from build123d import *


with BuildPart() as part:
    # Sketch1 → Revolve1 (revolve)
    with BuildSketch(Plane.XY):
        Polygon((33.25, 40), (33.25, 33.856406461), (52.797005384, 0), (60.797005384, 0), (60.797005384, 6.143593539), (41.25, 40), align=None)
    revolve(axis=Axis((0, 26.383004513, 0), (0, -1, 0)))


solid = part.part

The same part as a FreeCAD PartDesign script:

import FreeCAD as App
import Part
import Sketcher
from FreeCAD import Vector
Q = App.Units.Quantity

doc = App.newDocument("Part")
body = doc.addObject("PartDesign::Body", "Body")

# Sketch on XY plane
sketch1 = body.newObject("Sketcher::SketchObject", "Sketch")
sketch1.AttachmentSupport = (doc.getObject("XY_Plane"), [""])
sketch1.MapMode = "FlatFace"
sketch1.addGeometry(Part.LineSegment(Vector(33.25, 40, 0), Vector(33.25, 33.856406, 0)), False)
sketch1.addGeometry(Part.LineSegment(Vector(33.25, 33.856406, 0), Vector(52.797005, 0, 0)), False)
sketch1.addGeometry(Part.LineSegment(Vector(52.797005, 0, 0), Vector(60.797005, 0, 0)), False)
sketch1.addGeometry(Part.LineSegment(Vector(60.797005, 0, 0), Vector(60.797005, 6.143594, 0)), False)
sketch1.addGeometry(Part.LineSegment(Vector(60.797005, 6.143594, 0), Vector(41.25, 40, 0)), False)
sketch1.addGeometry(Part.LineSegment(Vector(41.25, 40, 0), Vector(33.25, 40, 0)), False)
sketch1.addConstraint(Sketcher.Constraint("Coincident", 0, 2, 1, 1))
sketch1.addConstraint(Sketcher.Constraint("Coincident", 1, 2, 2, 1))
sketch1.addConstraint(Sketcher.Constraint("Coincident", 2, 2, 3, 1))
sketch1.addConstraint(Sketcher.Constraint("Coincident", 3, 2, 4, 1))
sketch1.addConstraint(Sketcher.Constraint("Coincident", 4, 2, 5, 1))
sketch1.addConstraint(Sketcher.Constraint("Coincident", 5, 2, 0, 1))
sketch1.addConstraint(Sketcher.Constraint("Vertical", 0))
sketch1.addConstraint(Sketcher.Constraint("Horizontal", 2))
sketch1.addConstraint(Sketcher.Constraint("Vertical", 3))
sketch1.addConstraint(Sketcher.Constraint("Horizontal", 5))
sketch1.addConstraint(Sketcher.Constraint("PointOnObject", 1, 2, -1))
sketch1.addConstraint(Sketcher.Constraint("Parallel", 1, 4))
sketch1.addConstraint(Sketcher.Constraint("Equal", 2, 5))
sketch1.addConstraint(Sketcher.Constraint("DistanceX", 2, 1, 2, 2, Q("8 mm")))
sketch1.addConstraint(Sketcher.Constraint("Angle", 1, Q("-60 deg")))
sketch1.addConstraint(Sketcher.Constraint("DistanceY", -1, 1, 4, 2, Q("40 mm")))
sketch1.addConstraint(Sketcher.Constraint("DistanceX", -1, 1, 0, 2, Q("33.25 mm")))
sketch1.addConstraint(Sketcher.Constraint("Distance", 1, Q("39.094011 mm")))
revolution = body.newObject("PartDesign::Revolution", "Revolution")
revolution.Profile = sketch1
revolution.ReferenceAxis = (sketch1, ["V_Axis"])
revolution.Angle = 360

doc.recompute()
